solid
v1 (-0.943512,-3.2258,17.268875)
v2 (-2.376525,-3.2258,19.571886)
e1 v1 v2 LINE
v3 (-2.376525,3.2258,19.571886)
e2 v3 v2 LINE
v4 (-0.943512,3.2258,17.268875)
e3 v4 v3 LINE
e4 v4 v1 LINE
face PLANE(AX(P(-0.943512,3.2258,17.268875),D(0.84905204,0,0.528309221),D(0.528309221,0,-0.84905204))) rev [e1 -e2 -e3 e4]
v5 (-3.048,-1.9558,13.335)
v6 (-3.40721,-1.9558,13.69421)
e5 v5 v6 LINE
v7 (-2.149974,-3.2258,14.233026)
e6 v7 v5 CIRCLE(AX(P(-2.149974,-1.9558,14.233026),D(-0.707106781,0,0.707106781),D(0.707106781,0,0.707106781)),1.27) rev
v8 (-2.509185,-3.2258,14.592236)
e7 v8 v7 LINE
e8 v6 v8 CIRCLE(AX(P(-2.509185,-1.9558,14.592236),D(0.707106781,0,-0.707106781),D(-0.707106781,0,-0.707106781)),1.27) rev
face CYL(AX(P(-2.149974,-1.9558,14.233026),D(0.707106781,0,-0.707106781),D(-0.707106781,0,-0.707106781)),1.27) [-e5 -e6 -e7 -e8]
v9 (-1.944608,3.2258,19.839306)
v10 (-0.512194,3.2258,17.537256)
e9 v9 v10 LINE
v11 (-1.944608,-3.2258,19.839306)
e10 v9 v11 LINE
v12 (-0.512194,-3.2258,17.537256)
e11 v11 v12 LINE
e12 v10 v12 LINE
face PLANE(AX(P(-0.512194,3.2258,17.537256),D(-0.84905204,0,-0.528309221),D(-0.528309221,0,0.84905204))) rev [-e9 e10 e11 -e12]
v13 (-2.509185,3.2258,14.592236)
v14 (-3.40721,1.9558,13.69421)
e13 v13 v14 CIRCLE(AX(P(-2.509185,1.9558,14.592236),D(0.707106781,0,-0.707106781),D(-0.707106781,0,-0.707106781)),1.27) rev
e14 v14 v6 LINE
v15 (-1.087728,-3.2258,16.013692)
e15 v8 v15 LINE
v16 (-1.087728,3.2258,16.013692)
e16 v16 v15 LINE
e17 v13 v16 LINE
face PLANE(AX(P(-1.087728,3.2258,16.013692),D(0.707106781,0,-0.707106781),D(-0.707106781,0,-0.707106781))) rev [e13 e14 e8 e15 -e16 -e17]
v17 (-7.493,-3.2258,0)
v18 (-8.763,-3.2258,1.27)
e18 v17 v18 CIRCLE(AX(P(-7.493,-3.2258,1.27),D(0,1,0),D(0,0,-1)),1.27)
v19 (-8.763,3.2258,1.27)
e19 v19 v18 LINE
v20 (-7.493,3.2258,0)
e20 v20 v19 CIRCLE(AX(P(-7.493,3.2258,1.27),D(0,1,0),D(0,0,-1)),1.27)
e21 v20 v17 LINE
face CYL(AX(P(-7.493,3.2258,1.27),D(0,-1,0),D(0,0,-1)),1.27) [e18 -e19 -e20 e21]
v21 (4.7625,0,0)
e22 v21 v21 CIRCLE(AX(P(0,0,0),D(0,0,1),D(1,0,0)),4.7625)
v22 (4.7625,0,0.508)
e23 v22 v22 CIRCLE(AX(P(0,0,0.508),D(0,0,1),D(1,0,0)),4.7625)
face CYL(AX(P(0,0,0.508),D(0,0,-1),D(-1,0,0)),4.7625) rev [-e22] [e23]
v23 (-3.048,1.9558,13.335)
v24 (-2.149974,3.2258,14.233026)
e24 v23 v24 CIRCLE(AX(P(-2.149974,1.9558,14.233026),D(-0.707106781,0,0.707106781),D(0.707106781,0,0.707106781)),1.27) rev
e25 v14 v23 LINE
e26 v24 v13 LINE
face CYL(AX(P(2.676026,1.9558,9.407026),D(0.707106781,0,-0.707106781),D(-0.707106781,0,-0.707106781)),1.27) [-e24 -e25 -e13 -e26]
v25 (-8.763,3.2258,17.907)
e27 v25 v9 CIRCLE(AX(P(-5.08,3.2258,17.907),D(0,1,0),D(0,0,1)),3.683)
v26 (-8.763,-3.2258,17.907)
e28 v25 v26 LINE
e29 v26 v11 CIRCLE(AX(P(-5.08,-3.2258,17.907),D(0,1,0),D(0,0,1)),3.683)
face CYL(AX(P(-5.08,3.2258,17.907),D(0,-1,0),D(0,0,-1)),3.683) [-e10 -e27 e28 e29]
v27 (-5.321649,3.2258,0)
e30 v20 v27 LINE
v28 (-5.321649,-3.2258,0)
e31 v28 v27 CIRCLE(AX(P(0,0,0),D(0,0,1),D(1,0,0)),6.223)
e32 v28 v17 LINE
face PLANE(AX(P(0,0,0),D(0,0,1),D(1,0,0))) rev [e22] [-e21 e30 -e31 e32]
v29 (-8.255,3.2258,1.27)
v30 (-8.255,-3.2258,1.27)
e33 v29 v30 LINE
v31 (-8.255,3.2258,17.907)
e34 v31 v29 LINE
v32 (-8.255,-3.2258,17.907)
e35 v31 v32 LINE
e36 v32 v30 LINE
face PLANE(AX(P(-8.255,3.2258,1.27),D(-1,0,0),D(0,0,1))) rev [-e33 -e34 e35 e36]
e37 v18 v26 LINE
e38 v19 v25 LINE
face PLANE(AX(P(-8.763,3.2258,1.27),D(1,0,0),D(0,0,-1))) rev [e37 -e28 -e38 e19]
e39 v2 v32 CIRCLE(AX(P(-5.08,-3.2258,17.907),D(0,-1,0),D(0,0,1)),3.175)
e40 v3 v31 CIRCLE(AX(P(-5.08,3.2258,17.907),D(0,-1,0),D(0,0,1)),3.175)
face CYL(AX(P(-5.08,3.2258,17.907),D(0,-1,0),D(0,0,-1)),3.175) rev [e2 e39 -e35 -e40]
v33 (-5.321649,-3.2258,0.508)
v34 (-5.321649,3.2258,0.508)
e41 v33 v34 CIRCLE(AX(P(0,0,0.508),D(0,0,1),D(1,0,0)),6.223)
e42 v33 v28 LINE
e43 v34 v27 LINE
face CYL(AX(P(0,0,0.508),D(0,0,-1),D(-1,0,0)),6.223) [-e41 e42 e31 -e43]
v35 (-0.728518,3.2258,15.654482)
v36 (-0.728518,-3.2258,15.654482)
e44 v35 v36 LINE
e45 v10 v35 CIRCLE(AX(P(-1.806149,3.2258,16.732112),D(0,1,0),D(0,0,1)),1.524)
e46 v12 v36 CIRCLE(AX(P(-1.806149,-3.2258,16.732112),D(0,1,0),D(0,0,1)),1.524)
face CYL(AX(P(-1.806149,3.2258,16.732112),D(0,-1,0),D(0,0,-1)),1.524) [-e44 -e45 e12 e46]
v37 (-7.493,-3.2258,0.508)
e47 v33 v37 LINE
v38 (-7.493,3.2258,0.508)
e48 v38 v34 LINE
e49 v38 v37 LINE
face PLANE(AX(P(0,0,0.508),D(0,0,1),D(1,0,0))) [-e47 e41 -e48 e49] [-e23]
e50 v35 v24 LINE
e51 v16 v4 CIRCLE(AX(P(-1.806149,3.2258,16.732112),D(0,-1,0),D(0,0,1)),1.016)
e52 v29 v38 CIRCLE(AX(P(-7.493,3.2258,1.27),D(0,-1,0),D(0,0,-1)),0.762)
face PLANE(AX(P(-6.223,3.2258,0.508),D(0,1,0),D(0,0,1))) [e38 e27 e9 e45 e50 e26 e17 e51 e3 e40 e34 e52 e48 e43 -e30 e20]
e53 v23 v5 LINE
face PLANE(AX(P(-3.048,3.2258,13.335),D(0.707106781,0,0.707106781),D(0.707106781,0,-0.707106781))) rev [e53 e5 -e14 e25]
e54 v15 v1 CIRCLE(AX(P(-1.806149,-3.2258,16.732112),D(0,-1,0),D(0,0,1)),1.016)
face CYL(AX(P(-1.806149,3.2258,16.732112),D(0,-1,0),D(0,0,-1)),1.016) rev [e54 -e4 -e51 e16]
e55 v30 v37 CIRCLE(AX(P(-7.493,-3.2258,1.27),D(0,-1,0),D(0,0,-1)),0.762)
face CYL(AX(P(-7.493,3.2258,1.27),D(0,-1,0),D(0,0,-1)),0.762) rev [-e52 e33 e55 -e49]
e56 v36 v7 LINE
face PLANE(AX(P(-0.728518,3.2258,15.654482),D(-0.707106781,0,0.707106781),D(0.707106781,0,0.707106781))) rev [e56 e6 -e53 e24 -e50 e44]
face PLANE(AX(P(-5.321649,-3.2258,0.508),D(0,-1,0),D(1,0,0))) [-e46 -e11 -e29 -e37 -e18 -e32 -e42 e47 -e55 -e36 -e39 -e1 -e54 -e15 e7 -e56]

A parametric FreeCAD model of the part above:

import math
import FreeCAD as App
import Part
import Sketcher
Q = App.Units.Quantity


def edges_at(feature, points):
    """Names of the edges that pass closest to the given points."""
    edges = feature.Shape.Edges
    near = lambda p: min(range(len(edges)), key=lambda i: edges[i].distToShape(Part.Vertex(*p))[0])
    return sorted({f"Edge{near(p) + 1}" for p in points})


def add_polygon(sketch, points):
    """Adds a closed chain of lines whose ends are joined by coincident constraints."""
    first, n = sketch.GeometryCount, len(points)
    for a, b in zip(points, points[1:] + points[:1]):
        sketch.addGeometry(Part.LineSegment(App.Vector(*a, 0), App.Vector(*b, 0)), False)
    for i in range(n):
        sketch.addConstraint(Sketcher.Constraint("Coincident", first + i, 2, first + (i + 1) % n, 1))

doc = App.newDocument("Part")
body = doc.addObject("PartDesign::Body", "Body")

# Sketch on XY plane
sketch1 = body.newObject("Sketcher::SketchObject", "Sketch")
sketch1.AttachmentSupport = (doc.getObject("XY_Plane"), [""])
sketch1.MapMode = "FlatFace"
sketch1.addGeometry([
    Part.Circle(App.Vector(0, 0, 0), App.Vector(0, 0, 1), 6.223),
    Part.Circle(App.Vector(0, 0, 0), App.Vector(0, 0, 1), 4.7625),
], False)
sketch1.addConstraint([
    Sketcher.Constraint("Coincident", 0, 3, -1, 1),
    Sketcher.Constraint("Coincident", 1, 3, -1, 1),
    Sketcher.Constraint("Diameter", 0, Q("0.49 in")),
    Sketcher.Constraint("Diameter", 1, Q("0.375 in")),
])
pad1 = body.newObject("PartDesign::Pad", "Pad")
pad1.Profile = sketch1
pad1.Length = Q("0.02 in")
body2 = doc.addObject("PartDesign::Body", "Body001")

# Sketch on XZ plane
sketch2 = body2.newObject("Sketcher::SketchObject", "Sketch001")
sketch2.AttachmentSupport = (doc.getObject("XZ_Plane001"), [""])
sketch2.MapMode = "FlatFace"
sketch2.addGeometry([
    Part.LineSegment(App.Vector(-6.223, 0, 0), App.Vector(-7.493, 0, 0)),  # 0
    Part.ArcOfCircle(Part.Circle(App.Vector(-7.493, 1.27, 0), App.Vector(0, 0, 1), 1.27), math.radians(180), math.radians(270)),  # 1
    Part.LineSegment(App.Vector(-8.763, 1.27, 0), App.Vector(-8.763, 17.907, 0)),  # 2
    Part.ArcOfCircle(Part.Circle(App.Vector(-5.08, 17.907, 0), App.Vector(0, 0, 1), 3.683), math.radians(31.645056), math.radians(180)),  # 3
    Part.LineSegment(App.Vector(-1.944608, 19.839306, 0), App.Vector(-0.512194, 17.537256, 0)),  # 4
    Part.ArcOfCircle(Part.Circle(App.Vector(-1.806149, 16.732112, 0), App.Vector(0, 0, 1), 1.524), math.radians(-45), math.radians(31.891287)),  # 5
    Part.LineSegment(App.Vector(-0.728518, 15.654482, 0), App.Vector(-3.048, 13.335, 0)),  # 6
    Part.LineSegment(App.Vector(-3.048, 13.335, 0), App.Vector(-3.40721, 13.69421, 0)),  # 7
    Part.LineSegment(App.Vector(-3.40721, 13.69421, 0), App.Vector(-1.087728, 16.013692, 0)),  # 8
    Part.ArcOfCircle(Part.Circle(App.Vector(-1.806149, 16.732112, 0), App.Vector(0, 0, 1), 1.016), math.radians(-45), math.radians(31.891287)),  # 9
    Part.LineSegment(App.Vector(-0.943512, 17.268875, 0), App.Vector(-2.376525, 19.571886, 0)),  # 10
    Part.ArcOfCircle(Part.Circle(App.Vector(-5.08, 17.907, 0), App.Vector(0, 0, 1), 3.175), math.radians(31.626088), math.radians(180)),  # 11
    Part.LineSegment(App.Vector(-8.255, 17.907, 0), App.Vector(-8.255, 1.27, 0)),  # 12
    Part.ArcOfCircle(Part.Circle(App.Vector(-7.493, 1.27, 0), App.Vector(0, 0, 1), 0.762), math.radians(-180), math.radians(-90)),  # 13
    Part.LineSegment(App.Vector(-7.493, 0.508, 0), App.Vector(-6.223, 0.508, 0)),  # 14
    Part.LineSegment(App.Vector(-6.223, 0.508, 0), App.Vector(-6.223, 0, 0)),  # 15
], False)
sketch2.addConstraint([
    Sketcher.Constraint("Tangent", 0, 2, 1, 2),
    Sketcher.Constraint("Tangent", 1, 1, 2, 1),
    Sketcher.Constraint("Tangent", 2, 2, 3, 2),
    Sketcher.Constraint("Coincident", 3, 1, 4, 1),
    Sketcher.Constraint("Tangent", 4, 2, 5, 2),
    Sketcher.Constraint("Tangent", 5, 1, 6, 1),
    Sketcher.Constraint("Coincident", 6, 2, 7, 1),
    Sketcher.Constraint("Coincident", 7, 2, 8, 1),
    Sketcher.Constraint("Tangent", 8, 2, 9, 1),
    Sketcher.Constraint("Tangent", 9, 2, 10, 1),
    Sketcher.Constraint("Coincident", 10, 2, 11, 1),
    Sketcher.Constraint("Tangent", 11, 2, 12, 1),
    Sketcher.Constraint("Tangent", 12, 2, 13, 1),
    Sketcher.Constraint("Tangent", 13, 2, 14, 1),
    Sketcher.Constraint("Coincident", 14, 2, 15, 1),
    Sketcher.Constraint("Coincident", 15, 2, 0, 1),
    Sketcher.Constraint("Horizontal", 0),
    Sketcher.Constraint("Vertical", 2),
    Sketcher.Constraint("Vertical", 12),
    Sketcher.Constraint("Horizontal", 14),
    Sketcher.Constraint("Vertical", 15),
    Sketcher.Constraint("Coincident", 9, 3, 5, 3),
    Sketcher.Constraint("Coincident", 11, 3, 3, 3),
    Sketcher.Constraint("Coincident", 13, 3, 1, 3),
    Sketcher.Constraint("PointOnObject", 0, 2, -1),
    Sketcher.Constraint("Perpendicular", 6, 7),
    Sketcher.Constraint("Perpendicular", 7, 8),
    Sketcher.Constraint("Parallel", 4, 10),
    Sketcher.Constraint("Radius", 1, Q("0.05 in")),
    Sketcher.Constraint("Radius", 5, Q("0.06 in")),
    Sketcher.Constraint("Radius", 9, Q("0.04 in")),
    Sketcher.Constraint("Radius", 13, Q("0.03 in")),
    Sketcher.Constraint("Angle", 6, Q("-135 deg")),
    Sketcher.Constraint("Radius", 3, Q("0.145 in")),
    Sketcher.Constraint("DistanceX", 0, 2, 0, 1, Q("0.05 in")),
    Sketcher.Constraint("DistanceX", 3, 3, -1, 1, Q("0.2 in")),
    Sketcher.Constraint("DistanceY", 2, 1, 2, 2, Q("0.655 in")),
    Sketcher.Constraint("DistanceX", 6, 2, -1, 1, Q("0.12 in")),
    Sketcher.Constraint("DistanceY", 6, 2, 3, 3, Q("0.18 in")),
    Sketcher.Constraint("Distance", 4, 2.711319),
    Sketcher.Constraint("Distance", 10, 2.712451),
])
pad2 = body2.newObject("PartDesign::Pad", "Pad001")
pad2.Profile = sketch2
pad2.Type = "TwoLengths"
pad2.Length = Q("0.127 in")
pad2.Length2 = Q("0.127 in")
pad2.Reversed = True
body.AllowCompound = True
doc.recompute()

boolean = body.newObject("PartDesign::Boolean", "Boolean")
boolean.Type = "Fuse"
boolean.addObjects([body2])

# Sketch on XY plane
sketch3 = body.newObject("Sketcher::SketchObject", "Sketch002")
sketch3.AttachmentSupport = (doc.getObject("XY_Plane"), [""])
sketch3.MapMode = "FlatFace"
add_polygon(sketch3, [(-5.321649, 3.2258), (-5.321649, -3.2258), (-6.223, -3.2258), (-6.223, 3.2258)])  # lines 0-3
sketch3.addConstraint([
    Sketcher.Constraint("Vertical", 0),
    Sketcher.Constraint("Horizontal", 1),
    Sketcher.Constraint("Vertical", 2),
    Sketcher.Constraint("Horizontal", 3),
    Sketcher.Constraint("DistanceY", 0, 2, 0, 1, Q("0.254 in")),
    Sketcher.Constraint("DistanceY", 0, 2, -1, 1, Q("0.127 in")),
    Sketcher.Constraint("DistanceX", 1, 2, -1, 1, Q("0.245 in")),
    Sketcher.Constraint("DistanceX", 1, 2, 1, 1, 0.901351),
])
pad3 = body.newObject("PartDesign::Pad", "Pad002")
pad3.Profile = sketch3
pad3.Length = Q("0.02 in")
doc.recompute()

fillet = body.newObject("PartDesign::Fillet", "Fillet")
fillet.Base = (pad3, edges_at(pad3, [(-3.228, -3.226, 13.515), (-3.228, 3.226, 13.515)]))
fillet.Radius = Q("0.05 in")

doc.recompute()
